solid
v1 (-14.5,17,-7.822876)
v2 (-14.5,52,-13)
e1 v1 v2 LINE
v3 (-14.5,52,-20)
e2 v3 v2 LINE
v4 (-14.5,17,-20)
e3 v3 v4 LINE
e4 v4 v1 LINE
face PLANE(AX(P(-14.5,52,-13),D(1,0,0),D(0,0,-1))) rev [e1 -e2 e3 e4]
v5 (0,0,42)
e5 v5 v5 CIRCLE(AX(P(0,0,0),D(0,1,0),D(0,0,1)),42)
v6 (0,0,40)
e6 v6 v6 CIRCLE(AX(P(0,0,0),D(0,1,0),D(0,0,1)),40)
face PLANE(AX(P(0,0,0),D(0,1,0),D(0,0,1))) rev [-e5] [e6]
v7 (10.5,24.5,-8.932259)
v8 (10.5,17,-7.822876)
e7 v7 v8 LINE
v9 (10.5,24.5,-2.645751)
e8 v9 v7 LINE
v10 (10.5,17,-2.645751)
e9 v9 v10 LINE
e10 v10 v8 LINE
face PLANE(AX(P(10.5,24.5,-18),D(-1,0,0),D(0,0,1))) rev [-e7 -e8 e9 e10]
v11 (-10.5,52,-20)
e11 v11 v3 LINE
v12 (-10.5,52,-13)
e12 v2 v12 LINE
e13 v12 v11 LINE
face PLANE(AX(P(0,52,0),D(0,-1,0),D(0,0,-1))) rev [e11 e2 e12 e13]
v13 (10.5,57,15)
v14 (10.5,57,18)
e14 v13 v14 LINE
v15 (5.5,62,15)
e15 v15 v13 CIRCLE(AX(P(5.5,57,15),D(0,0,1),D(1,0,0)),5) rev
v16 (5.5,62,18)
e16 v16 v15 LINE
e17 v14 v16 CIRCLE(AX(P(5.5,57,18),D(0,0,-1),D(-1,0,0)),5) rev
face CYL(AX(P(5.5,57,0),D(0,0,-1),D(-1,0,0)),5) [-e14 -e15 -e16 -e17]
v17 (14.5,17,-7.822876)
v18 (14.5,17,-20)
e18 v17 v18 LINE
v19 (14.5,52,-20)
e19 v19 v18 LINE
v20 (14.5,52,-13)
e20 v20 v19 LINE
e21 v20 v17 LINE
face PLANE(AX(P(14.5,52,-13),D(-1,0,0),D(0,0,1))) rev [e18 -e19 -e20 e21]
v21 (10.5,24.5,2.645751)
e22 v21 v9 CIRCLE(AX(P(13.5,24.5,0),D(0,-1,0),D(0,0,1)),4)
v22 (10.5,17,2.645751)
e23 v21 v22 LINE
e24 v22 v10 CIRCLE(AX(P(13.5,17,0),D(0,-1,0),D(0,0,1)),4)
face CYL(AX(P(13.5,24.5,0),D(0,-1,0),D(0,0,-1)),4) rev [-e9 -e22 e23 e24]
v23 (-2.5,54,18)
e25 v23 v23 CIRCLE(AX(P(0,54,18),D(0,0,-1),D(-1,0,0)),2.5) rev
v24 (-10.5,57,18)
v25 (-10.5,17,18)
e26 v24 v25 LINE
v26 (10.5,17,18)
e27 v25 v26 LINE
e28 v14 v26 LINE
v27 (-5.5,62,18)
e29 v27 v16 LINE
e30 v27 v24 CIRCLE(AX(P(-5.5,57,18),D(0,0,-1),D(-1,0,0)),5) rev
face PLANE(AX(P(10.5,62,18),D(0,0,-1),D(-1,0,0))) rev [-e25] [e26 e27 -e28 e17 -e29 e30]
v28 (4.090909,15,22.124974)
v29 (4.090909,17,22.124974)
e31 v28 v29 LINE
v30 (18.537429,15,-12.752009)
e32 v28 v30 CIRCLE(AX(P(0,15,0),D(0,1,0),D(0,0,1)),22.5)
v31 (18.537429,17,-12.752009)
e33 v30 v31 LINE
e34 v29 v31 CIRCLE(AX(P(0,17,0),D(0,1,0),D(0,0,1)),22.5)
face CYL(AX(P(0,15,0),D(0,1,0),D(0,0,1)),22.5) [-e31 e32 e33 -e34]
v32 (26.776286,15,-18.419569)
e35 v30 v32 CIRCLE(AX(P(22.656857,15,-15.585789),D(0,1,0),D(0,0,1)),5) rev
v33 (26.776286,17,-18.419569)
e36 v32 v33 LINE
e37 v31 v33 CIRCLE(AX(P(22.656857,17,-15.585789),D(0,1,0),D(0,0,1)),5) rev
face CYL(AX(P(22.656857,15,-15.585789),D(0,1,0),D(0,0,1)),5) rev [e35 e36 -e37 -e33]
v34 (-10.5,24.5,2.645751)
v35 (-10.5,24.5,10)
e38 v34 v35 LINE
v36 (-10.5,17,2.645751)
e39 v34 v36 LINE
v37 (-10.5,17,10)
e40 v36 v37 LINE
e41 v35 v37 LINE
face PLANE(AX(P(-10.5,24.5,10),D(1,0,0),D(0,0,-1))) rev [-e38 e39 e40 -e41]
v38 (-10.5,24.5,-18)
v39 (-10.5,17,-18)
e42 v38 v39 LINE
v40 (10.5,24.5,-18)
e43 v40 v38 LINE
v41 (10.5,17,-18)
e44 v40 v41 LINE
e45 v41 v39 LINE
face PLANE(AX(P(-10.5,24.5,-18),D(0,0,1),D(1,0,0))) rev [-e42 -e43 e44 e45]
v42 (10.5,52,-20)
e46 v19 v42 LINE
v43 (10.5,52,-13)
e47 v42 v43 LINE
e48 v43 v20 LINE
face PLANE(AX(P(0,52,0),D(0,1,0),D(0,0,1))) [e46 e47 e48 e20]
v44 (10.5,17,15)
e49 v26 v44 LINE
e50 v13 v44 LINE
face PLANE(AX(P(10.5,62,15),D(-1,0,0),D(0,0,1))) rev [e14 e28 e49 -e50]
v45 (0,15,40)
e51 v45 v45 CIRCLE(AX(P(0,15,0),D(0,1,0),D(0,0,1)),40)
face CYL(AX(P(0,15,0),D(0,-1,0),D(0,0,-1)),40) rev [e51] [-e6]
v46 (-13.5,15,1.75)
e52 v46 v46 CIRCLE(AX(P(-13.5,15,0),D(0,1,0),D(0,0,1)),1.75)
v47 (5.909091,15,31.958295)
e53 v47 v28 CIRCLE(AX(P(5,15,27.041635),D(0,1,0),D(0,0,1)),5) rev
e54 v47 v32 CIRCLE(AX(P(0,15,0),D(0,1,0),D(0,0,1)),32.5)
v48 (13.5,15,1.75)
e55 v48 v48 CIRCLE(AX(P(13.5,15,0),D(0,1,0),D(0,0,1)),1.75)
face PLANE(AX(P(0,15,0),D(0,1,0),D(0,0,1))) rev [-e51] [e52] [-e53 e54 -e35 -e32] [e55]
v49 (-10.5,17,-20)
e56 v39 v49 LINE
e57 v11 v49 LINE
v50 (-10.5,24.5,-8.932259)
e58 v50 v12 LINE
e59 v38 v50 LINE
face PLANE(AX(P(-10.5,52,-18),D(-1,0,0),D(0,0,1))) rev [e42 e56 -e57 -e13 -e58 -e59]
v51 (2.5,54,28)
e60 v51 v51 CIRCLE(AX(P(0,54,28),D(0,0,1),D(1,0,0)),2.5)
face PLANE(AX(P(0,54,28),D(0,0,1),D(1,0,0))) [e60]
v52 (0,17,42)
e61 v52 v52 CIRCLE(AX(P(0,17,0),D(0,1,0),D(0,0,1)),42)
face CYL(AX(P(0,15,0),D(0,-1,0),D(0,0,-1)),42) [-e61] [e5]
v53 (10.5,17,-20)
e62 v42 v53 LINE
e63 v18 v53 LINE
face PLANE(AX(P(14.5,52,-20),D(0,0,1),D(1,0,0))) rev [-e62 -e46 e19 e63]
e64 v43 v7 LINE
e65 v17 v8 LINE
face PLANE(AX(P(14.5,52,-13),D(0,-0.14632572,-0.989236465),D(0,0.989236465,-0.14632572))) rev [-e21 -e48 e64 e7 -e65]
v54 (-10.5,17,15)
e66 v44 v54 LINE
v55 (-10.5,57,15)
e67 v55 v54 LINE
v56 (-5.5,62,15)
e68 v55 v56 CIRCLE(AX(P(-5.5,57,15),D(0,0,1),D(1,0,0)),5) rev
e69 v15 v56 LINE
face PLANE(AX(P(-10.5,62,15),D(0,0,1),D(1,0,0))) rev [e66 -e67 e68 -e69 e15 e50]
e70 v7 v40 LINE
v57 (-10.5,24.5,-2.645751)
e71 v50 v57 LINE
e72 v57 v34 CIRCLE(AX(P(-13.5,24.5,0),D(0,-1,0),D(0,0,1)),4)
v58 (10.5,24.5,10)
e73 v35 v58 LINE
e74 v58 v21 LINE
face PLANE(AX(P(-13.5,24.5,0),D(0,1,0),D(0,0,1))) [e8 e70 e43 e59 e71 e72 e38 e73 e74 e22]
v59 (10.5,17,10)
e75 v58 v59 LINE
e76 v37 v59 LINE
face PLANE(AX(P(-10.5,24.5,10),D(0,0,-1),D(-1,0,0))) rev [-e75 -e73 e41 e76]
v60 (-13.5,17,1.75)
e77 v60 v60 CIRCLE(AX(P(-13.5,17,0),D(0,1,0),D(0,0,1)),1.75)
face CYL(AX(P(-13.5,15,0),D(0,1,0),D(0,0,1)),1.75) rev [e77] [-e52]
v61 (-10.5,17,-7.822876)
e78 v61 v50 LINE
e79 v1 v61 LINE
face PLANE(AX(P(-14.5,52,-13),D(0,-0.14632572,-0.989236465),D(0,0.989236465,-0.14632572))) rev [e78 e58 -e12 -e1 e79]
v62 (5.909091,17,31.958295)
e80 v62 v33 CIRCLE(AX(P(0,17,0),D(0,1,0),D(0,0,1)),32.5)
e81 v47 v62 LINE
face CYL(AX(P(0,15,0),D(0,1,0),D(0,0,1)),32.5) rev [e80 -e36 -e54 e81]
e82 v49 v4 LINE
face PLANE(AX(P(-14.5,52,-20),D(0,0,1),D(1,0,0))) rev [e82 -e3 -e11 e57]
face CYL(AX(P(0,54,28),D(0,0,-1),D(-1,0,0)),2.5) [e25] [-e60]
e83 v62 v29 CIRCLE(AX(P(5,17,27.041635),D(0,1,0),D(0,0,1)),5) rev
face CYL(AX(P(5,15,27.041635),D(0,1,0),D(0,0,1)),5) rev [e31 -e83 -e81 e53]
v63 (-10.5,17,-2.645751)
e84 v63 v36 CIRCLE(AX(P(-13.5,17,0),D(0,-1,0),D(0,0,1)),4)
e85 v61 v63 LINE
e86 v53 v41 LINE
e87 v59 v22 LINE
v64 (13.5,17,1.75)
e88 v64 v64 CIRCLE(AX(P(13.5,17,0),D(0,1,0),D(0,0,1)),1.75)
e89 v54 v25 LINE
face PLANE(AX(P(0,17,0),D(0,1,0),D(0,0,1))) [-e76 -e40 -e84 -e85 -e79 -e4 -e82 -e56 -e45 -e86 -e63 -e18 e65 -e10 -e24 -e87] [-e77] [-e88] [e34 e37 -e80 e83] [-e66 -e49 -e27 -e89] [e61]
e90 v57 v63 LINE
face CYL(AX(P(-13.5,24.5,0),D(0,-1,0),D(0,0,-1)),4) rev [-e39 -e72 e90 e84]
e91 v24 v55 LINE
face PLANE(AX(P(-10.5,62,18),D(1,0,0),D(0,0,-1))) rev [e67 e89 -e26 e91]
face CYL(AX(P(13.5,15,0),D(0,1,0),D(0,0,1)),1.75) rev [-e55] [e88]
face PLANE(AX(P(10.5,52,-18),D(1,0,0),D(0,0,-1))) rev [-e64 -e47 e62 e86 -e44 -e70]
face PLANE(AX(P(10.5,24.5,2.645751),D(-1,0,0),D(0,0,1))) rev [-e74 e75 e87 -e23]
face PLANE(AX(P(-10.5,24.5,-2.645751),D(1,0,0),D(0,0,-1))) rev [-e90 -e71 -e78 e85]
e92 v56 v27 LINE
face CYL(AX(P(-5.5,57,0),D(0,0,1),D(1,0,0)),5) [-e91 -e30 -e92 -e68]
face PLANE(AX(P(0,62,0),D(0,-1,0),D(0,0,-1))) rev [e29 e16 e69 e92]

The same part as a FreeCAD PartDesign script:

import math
import FreeCAD as App
import Part
import Sketcher
Q = App.Units.Quantity


def edges_at(feature, points):
    """Names of the edges that pass closest to the given points."""
    edges = feature.Shape.Edges
    near = lambda p: min(range(len(edges)), key=lambda i: edges[i].distToShape(Part.Vertex(*p))[0])
    return sorted({f"Edge{near(p) + 1}" for p in points})

doc = App.newDocument("Part")
body = doc.addObject("PartDesign::Body", "Body")

sketch1 = body.newObject("Sketcher::SketchObject", "Sketch")
sketch1.AttachmentSupport = (doc.getObject("XZ_Plane"), [""])
sketch1.MapMode = "FlatFace"
sketch1.addGeometry([
    Part.Circle(App.Vector(0, 0, 0), App.Vector(0, 0, 1), 42),
    Part.Circle(App.Vector(0, 0, 0), App.Vector(0, 0, 1), 40),
], False)
sketch1.addConstraint([
    Sketcher.Constraint("Coincident", 0, 3, -1, 1),
    Sketcher.Constraint("Coincident", 1, 3, -1, 1),
    Sketcher.Constraint("Diameter", 0, Q("84 mm")),
    Sketcher.Constraint("Diameter", 1, Q("80 mm")),
])
pad1 = body.newObject("PartDesign::Pad", "Pad")
pad1.Profile = sketch1
pad1.Length = 15
pad1.Reversed = True

sketch2 = body.newObject("Sketcher::SketchObject", "Sketch001")
sketch2.AttachmentSupport = (doc.getObject("XZ_Plane"), [""])
sketch2.MapMode = "FlatFace"
sketch2.AttachmentOffset = App.Placement(App.Vector(0, 0, -15), App.Rotation())
sketch2.addGeometry(Part.Circle(App.Vector(0, 0, 0), App.Vector(0, 0, 1), 42), False)
sketch2.addConstraint([
    Sketcher.Constraint("Coincident", 0, 3, -1, 1),
    Sketcher.Constraint("Diameter", 0, Q("84 mm")),
])
pad2 = body.newObject("PartDesign::Pad", "Pad001")
pad2.Profile = sketch2
pad2.Length = 2
pad2.Reversed = True

sketch3 = body.newObject("Sketcher::SketchObject", "Sketch002")
sketch3.AttachmentSupport = (doc.getObject("XZ_Plane"), [""])
sketch3.MapMode = "FlatFace"
sketch3.AttachmentOffset = App.Placement(App.Vector(0, 0, -17), App.Rotation())
sketch3.addGeometry([
    Part.Circle(App.Vector(-13.5, 0, 0), App.Vector(0, 0, 1), 1.8),
    Part.Circle(App.Vector(13.5, 0, 0), App.Vector(0, 0, 1), 1.8),
], False)
sketch3.addConstraint([
    Sketcher.Constraint("Equal", 0, 1),
    Sketcher.Constraint("Symmetric", 0, 3, 1, 3, -1, 1),
    Sketcher.Constraint("PointOnObject", 0, 3, -1),
    Sketcher.Constraint("Diameter", 0, Q("3.5 mm")),
    Sketcher.Constraint("DistanceX", 0, 3, 1, 3, Q("27 mm")),
])
pocket1 = body.newObject("PartDesign::Pocket", "Pocket")
pocket1.Profile = sketch3
pocket1.Length = 2
pocket1.Reversed = True

sketch4 = body.newObject("Sketcher::SketchObject", "Sketch003")
sketch4.AttachmentSupport = (doc.getObject("XZ_Plane"), [""])
sketch4.MapMode = "FlatFace"
sketch4.AttachmentOffset = App.Placement(App.Vector(0, 0, -17), App.Rotation())
sketch4.addGeometry([
    Part.ArcOfCircle(Part.Circle(App.Vector(22.7, -15.6, 0), App.Vector(0, 0, 1), 5), math.radians(-135), math.radians(-35)),
    Part.ArcOfCircle(Part.Circle(App.Vector(22.7, -15.6, 0), App.Vector(0, 0, 1), 5), math.radians(145), math.radians(225)),
    Part.ArcOfCircle(Part.Circle(App.Vector(0, 0, 0), App.Vector(0, 0, 1), 22.5), math.radians(-35), math.radians(80)),
    Part.ArcOfCircle(Part.Circle(App.Vector(5, 27, 0), App.Vector(0, 0, 1), 5), math.radians(180), math.radians(260)),
    Part.ArcOfCircle(Part.Circle(App.Vector(5, 27, 0), App.Vector(0, 0, 1), 5), math.radians(80), math.radians(180)),
    Part.ArcOfCircle(Part.Circle(App.Vector(0, 0, 0), App.Vector(0, 0, 1), 32.5), math.radians(-35), math.radians(80)),
], False)
sketch4.addConstraint([
    Sketcher.Constraint("Tangent", 0, 1, 1, 2),
    Sketcher.Constraint("Tangent", 1, 1, 2, 1),
    Sketcher.Constraint("Tangent", 2, 2, 3, 2),
    Sketcher.Constraint("Tangent", 3, 1, 4, 2),
    Sketcher.Constraint("Tangent", 4, 1, 5, 2),
    Sketcher.Constraint("Tangent", 5, 1, 0, 2),
    Sketcher.Constraint("Coincident", 2, 3, -1, 1),
    Sketcher.Constraint("Coincident", 5, 3, -1, 1),
    Sketcher.Constraint("Equal", 0, 1),
    Sketcher.Constraint("Equal", 1, 3),
    Sketcher.Constraint("PointOnObject", 3, 1, -2),
    Sketcher.Constraint("Horizontal", 4, 3, 3, 1),
    Sketcher.Constraint("Radius", 0, Q("5 mm")),
    Sketcher.Constraint("Radius", 2, Q("22.5 mm")),
    Sketcher.Constraint("DistanceY", 0, 3, -1, 1, Q("15.585789 mm")),
    Sketcher.Constraint("DistanceX", -1, 1, 0, 1, Q("19.121323 mm")),
])
pocket2 = body.newObject("PartDesign::Pocket", "Pocket001")
pocket2.Profile = sketch4
pocket2.Length = 2
pocket2.Reversed = True

sketch5 = body.newObject("Sketcher::SketchObject", "Sketch004")
sketch5.AttachmentSupport = (doc.getObject("XZ_Plane"), [""])
sketch5.MapMode = "FlatFace"
sketch5.AttachmentOffset = App.Placement(App.Vector(0, 0, -17), App.Rotation())
sketch5.addGeometry([
    Part.LineSegment(App.Vector(-10.5, 2.6, 0), App.Vector(-10.5, 10, 0)),
    Part.LineSegment(App.Vector(-10.5, 10, 0), App.Vector(10.5, 10, 0)),
    Part.LineSegment(App.Vector(10.5, 10, 0), App.Vector(10.5, 2.6, 0)),
    Part.ArcOfCircle(Part.Circle(App.Vector(13.5, 0, 0), App.Vector(0, 0, 1), 4), math.radians(139), math.radians(221)),
    Part.LineSegment(App.Vector(10.5, -2.6, 0), App.Vector(10.5, -18, 0)),
    Part.LineSegment(App.Vector(10.5, -18, 0), App.Vector(-10.5, -18, 0)),
    Part.LineSegment(App.Vector(-10.5, -18, 0), App.Vector(-10.5, -2.6, 0)),
    Part.ArcOfCircle(Part.Circle(App.Vector(-13.5, 0, 0), App.Vector(0, 0, 1), 4), math.radians(-41), math.radians(41)),
], False)
sketch5.addConstraint([
    Sketcher.Constraint("Coincident", 0, 2, 1, 1),
    Sketcher.Constraint("Coincident", 1, 2, 2, 1),
    Sketcher.Constraint("Coincident", 2, 2, 3, 1),
    Sketcher.Constraint("Coincident", 3, 2, 4, 1),
    Sketcher.Constraint("Coincident", 4, 2, 5, 1),
    Sketcher.Constraint("Coincident", 5, 2, 6, 1),
    Sketcher.Constraint("Coincident", 6, 2, 7, 1),
    Sketcher.Constraint("Coincident", 7, 2, 0, 1),
    Sketcher.Constraint("Vertical", 0),
    Sketcher.Constraint("Horizontal", 1),
    Sketcher.Constraint("Vertical", 2),
    Sketcher.Constraint("Vertical", 4),
    Sketcher.Constraint("Horizontal", 5),
    Sketcher.Constraint("Vertical", 6),
    Sketcher.Constraint("Equal", 3, 7),
    Sketcher.Constraint("Symmetric", 3, 3, 7, 3, -1, 1),
    Sketcher.Constraint("Symmetric", 3, 2, 6, 2, -2),
    Sketcher.Constraint("Horizontal", 2, 2, 7, 2),
    Sketcher.Constraint("Vertical", 2, 2, 3, 2),
    Sketcher.Constraint("Radius", 3, Q("4 mm")),
    Sketcher.Constraint("DistanceX", 1, 1, 1, 2, Q("21 mm")),
    Sketcher.Constraint("DistanceY", -1, 1, 0, 2, Q("10 mm")),
    Sketcher.Constraint("DistanceY", 4, 2, -1, 1, Q("18 mm")),
    Sketcher.Constraint("DistanceX", 7, 3, 3, 3, Q("27 mm")),
])
pad3 = body.newObject("PartDesign::Pad", "Pad002")
pad3.Profile = sketch5
pad3.Length = 7.5
pad3.Reversed = True

sketch6 = body.newObject("Sketcher::SketchObject", "Sketch005")
sketch6.AttachmentSupport = (doc.getObject("XZ_Plane"), [""])
sketch6.MapMode = "FlatFace"
sketch6.AttachmentOffset = App.Placement(App.Vector(0, 0, -17), App.Rotation())
sketch6.addGeometry([
    Part.LineSegment(App.Vector(-10.5, -13, 0), App.Vector(-10.5, -20, 0)),
    Part.LineSegment(App.Vector(-10.5, -20, 0), App.Vector(-14.5, -20, 0)),
    Part.LineSegment(App.Vector(-14.5, -20, 0), App.Vector(-14.5, -13, 0)),
    Part.LineSegment(App.Vector(-14.5, -13, 0), App.Vector(-10.5, -13, 0)),
    Part.LineSegment(App.Vector(10.5, -20, 0), App.Vector(10.5, -13, 0)),
    Part.LineSegment(App.Vector(10.5, -13, 0), App.Vector(14.5, -13, 0)),
    Part.LineSegment(App.Vector(14.5, -13, 0), App.Vector(14.5, -20, 0)),
    Part.LineSegment(App.Vector(14.5, -20, 0), App.Vector(10.5, -20, 0)),
], False)
sketch6.addConstraint([
    Sketcher.Constraint("Coincident", 0, 2, 1, 1),
    Sketcher.Constraint("Coincident", 1, 2, 2, 1),
    Sketcher.Constraint("Coincident", 2, 2, 3, 1),
    Sketcher.Constraint("Coincident", 3, 2, 0, 1),
    Sketcher.Constraint("Coincident", 4, 2, 5, 1),
    Sketcher.Constraint("Coincident", 5, 2, 6, 1),
    Sketcher.Constraint("Coincident", 6, 2, 7, 1),
    Sketcher.Constraint("Coincident", 7, 2, 4, 1),
    Sketcher.Constraint("Vertical", 0),
    Sketcher.Constraint("Horizontal", 1),
    Sketcher.Constraint("Vertical", 2),
    Sketcher.Constraint("Horizontal", 3),
    Sketcher.Constraint("Vertical", 4),
    Sketcher.Constraint("Horizontal", 5),
    Sketcher.Constraint("Vertical", 6),
    Sketcher.Constraint("Horizontal", 7),
    Sketcher.Constraint("Symmetric", 3, 2, 4, 2, -2),
    Sketcher.Constraint("Symmetric", 1, 2, 6, 2, -2),
    Sketcher.Constraint("DistanceX", 1, 2, 1, 1, Q("4 mm")),
    Sketcher.Constraint("DistanceY", 0, 2, 0, 1, Q("7 mm")),
    Sketcher.Constraint("DistanceY", 0, 2, -1, 1, Q("20 mm")),
    Sketcher.Constraint("DistanceX", 3, 2, 4, 2, Q("21 mm")),
])
pad4 = body.newObject("PartDesign::Pad", "Pad003")
pad4.Profile = sketch6
pad4.Length = 35
pad4.Reversed = True

sketch7 = body.newObject("Sketcher::SketchObject", "Sketch006")
sketch7.AttachmentSupport = (doc.getObject("YZ_Plane"), [""])
sketch7.MapMode = "FlatFace"
sketch7.AttachmentOffset = App.Placement(App.Vector(0, 0, 10.5), App.Rotation())
sketch7.addGeometry([
    Part.LineSegment(App.Vector(52, -13, 0), App.Vector(17, -8, 0)),
    Part.LineSegment(App.Vector(17, -8, 0), App.Vector(17, -13, 0)),
    Part.LineSegment(App.Vector(17, -13, 0), App.Vector(52, -13, 0)),
], False)
sketch7.addConstraint([
    Sketcher.Constraint("Coincident", 0, 2, 1, 1),
    Sketcher.Constraint("Coincident", 1, 2, 2, 1),
    Sketcher.Constraint("Coincident", 2, 2, 0, 1),
    Sketcher.Constraint("Vertical", 1),
    Sketcher.Constraint("Horizontal", 2),
    Sketcher.Constraint("DistanceX", 2, 1, 2, 2, Q("35 mm")),
    Sketcher.Constraint("DistanceX", -1, 1, 0, 2, Q("17 mm")),
    Sketcher.Constraint("DistanceY", 1, 2, -1, 1, Q("13 mm")),
    Sketcher.Constraint("DistanceY", 1, 2, 1, 1, Q("5.177124 mm")),
])
pad5 = body.newObject("PartDesign::Pad", "Pad004")
pad5.Profile = sketch7
pad5.Length = 4

sketch8 = body.newObject("Sketcher::SketchObject", "Sketch007")
sketch8.AttachmentSupport = (doc.getObject("YZ_Plane"), [""])
sketch8.MapMode = "FlatFace"
sketch8.AttachmentOffset = App.Placement(App.Vector(0, 0, -10.5), App.Rotation())
sketch8.addGeometry([
    Part.LineSegment(App.Vector(17, -8, 0), App.Vector(52, -13, 0)),
    Part.LineSegment(App.Vector(52, -13, 0), App.Vector(17, -13, 0)),
    Part.LineSegment(App.Vector(17, -13, 0), App.Vector(17, -8, 0)),
], False)
sketch8.addConstraint([
    Sketcher.Constraint("Coincident", 0, 2, 1, 1),
    Sketcher.Constraint("Coincident", 1, 2, 2, 1),
    Sketcher.Constraint("Coincident", 2, 2, 0, 1),
    Sketcher.Constraint("Horizontal", 1),
    Sketcher.Constraint("Vertical", 2),
    Sketcher.Constraint("DistanceX", 1, 2, 1, 1, Q("35 mm")),
    Sketcher.Constraint("DistanceX", -1, 1, 0, 2, Q("52 mm")),
    Sketcher.Constraint("DistanceY", 0, 2, -1, 1, Q("13 mm")),
    Sketcher.Constraint("DistanceY", 2, 1, 2, 2, Q("5.177124 mm")),
])
pad6 = body.newObject("PartDesign::Pad", "Pad005")
pad6.Profile = sketch8
pad6.Length = 4
pad6.Reversed = True

sketch9 = body.newObject("Sketcher::SketchObject", "Sketch008")
sketch9.AttachmentSupport = (doc.getObject("XZ_Plane"), [""])
sketch9.MapMode = "FlatFace"
sketch9.AttachmentOffset = App.Placement(App.Vector(0, 0, -17), App.Rotation())
sketch9.addGeometry([
    Part.LineSegment(App.Vector(-10.5, 15, 0), App.Vector(-10.5, 18, 0)),
    Part.LineSegment(App.Vector(-10.5, 18, 0), App.Vector(10.5, 18, 0)),
    Part.LineSegment(App.Vector(10.5, 18, 0), App.Vector(10.5, 15, 0)),
    Part.LineSegment(App.Vector(10.5, 15, 0), App.Vector(-10.5, 15, 0)),
], False)
sketch9.addConstraint([
    Sketcher.Constraint("Coincident", 0, 2, 1, 1),
    Sketcher.Constraint("Coincident", 1, 2, 2, 1),
    Sketcher.Constraint("Coincident", 2, 2, 3, 1),
    Sketcher.Constraint("Coincident", 3, 2, 0, 1),
    Sketcher.Constraint("Vertical", 0),
    Sketcher.Constraint("Horizontal", 1),
    Sketcher.Constraint("Vertical", 2),
    Sketcher.Constraint("Horizontal", 3),
    Sketcher.Constraint("DistanceX", 1, 1, 1, 2, Q("21 mm")),
    Sketcher.Constraint("DistanceY", 0, 1, 0, 2, Q("3 mm")),
    Sketcher.Constraint("DistanceY", -1, 1, 0, 2, Q("18 mm")),
    Sketcher.Constraint("DistanceX", 0, 2, -1, 1, Q("10.5 mm")),
])
pad7 = body.newObject("PartDesign::Pad", "Pad006")
pad7.Profile = sketch9
pad7.Length = 45
pad7.Reversed = True

sketch10 = body.newObject("Sketcher::SketchObject", "Sketch009")
sketch10.AttachmentSupport = (doc.getObject("XY_Plane"), [""])
sketch10.MapMode = "FlatFace"
sketch10.AttachmentOffset = App.Placement(App.Vector(0, 0, 18), App.Rotation())
sketch10.addGeometry(Part.Circle(App.Vector(0, 54, 0), App.Vector(0, 0, 1), 2.5), False)
sketch10.addConstraint([
    Sketcher.Constraint("PointOnObject", 0, 3, -2),
    Sketcher.Constraint("Diameter", 0, Q("5 mm")),
    Sketcher.Constraint("DistanceY", -1, 1, 0, 3, Q("54 mm")),
])
pad8 = body.newObject("PartDesign::Pad", "Pad007")
pad8.Profile = sketch10
pad8.Length = 10
doc.recompute()

fillet = body.newObject("PartDesign::Fillet", "Fillet")
fillet.Base = (pad8, edges_at(pad8, [(-10.5, 62, 16.5), (10.5, 62, 16.5)]))
fillet.Radius = 5

doc.recompute()
